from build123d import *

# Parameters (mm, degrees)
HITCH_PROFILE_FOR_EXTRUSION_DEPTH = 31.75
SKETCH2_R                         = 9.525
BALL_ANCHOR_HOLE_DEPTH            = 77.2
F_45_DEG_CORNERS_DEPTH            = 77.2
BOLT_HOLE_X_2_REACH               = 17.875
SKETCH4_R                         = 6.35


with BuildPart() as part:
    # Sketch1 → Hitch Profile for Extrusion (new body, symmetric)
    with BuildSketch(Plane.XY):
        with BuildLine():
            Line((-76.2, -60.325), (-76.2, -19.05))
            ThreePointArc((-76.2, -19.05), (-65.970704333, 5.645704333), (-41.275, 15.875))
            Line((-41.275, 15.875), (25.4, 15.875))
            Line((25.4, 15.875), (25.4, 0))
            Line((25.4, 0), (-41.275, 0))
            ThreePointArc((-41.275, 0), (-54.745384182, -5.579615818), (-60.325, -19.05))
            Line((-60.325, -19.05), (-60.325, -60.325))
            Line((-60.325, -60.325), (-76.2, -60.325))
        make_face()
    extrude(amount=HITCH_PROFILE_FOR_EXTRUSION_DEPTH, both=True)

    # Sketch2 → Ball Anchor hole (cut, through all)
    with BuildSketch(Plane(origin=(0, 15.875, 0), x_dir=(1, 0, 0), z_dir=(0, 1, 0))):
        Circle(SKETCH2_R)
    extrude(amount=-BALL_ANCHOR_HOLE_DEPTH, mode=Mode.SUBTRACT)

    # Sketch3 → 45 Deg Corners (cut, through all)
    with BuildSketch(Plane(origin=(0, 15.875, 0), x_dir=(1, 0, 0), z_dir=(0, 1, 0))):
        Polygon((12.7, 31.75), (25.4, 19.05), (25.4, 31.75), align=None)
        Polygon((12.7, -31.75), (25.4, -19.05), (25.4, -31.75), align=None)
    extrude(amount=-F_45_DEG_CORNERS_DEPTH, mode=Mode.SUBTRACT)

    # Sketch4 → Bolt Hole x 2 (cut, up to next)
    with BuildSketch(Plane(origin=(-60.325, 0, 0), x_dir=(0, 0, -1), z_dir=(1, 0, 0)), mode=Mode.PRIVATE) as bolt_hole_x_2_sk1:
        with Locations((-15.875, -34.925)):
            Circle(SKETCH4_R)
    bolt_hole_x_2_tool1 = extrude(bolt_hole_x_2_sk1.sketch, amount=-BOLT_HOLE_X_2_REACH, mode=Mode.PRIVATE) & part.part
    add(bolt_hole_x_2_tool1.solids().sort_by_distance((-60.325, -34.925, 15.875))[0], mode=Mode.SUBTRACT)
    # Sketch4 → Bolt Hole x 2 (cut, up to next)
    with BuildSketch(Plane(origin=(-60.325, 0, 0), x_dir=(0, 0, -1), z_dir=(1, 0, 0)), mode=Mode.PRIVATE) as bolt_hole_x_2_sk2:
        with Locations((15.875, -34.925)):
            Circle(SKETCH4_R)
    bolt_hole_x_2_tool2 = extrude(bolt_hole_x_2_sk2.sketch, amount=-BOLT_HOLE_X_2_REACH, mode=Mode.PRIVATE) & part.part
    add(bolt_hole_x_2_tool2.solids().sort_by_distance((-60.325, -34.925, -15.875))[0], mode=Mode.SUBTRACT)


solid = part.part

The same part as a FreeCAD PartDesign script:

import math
import FreeCAD as App
import Part
import Sketcher
Q = App.Units.Quantity


def add_polygon(sketch, points):
    """Adds a closed chain of lines whose ends are joined by coincident constraints."""
    first, n = sketch.GeometryCount, len(points)
    for a, b in zip(points, points[1:] + points[:1]):
        sketch.addGeometry(Part.LineSegment(App.Vector(*a, 0), App.Vector(*b, 0)), False)
    for i in range(n):
        sketch.addConstraint(Sketcher.Constraint("Coincident", first + i, 2, first + (i + 1) % n, 1))

doc = App.newDocument("Part")
body = doc.addObject("PartDesign::Body", "Body")

# Sketch on XY plane
sketch1 = body.newObject("Sketcher::SketchObject", "Sketch")
sketch1.AttachmentSupport = (doc.getObject("XY_Plane"), [""])
sketch1.MapMode = "FlatFace"
sketch1.addGeometry(Part.LineSegment(App.Vector(-76.2, -19.05, 0), App.Vector(-76.2, -60.325, 0)), False)
sketch1.addGeometry(Part.LineSegment(App.Vector(-76.2, -60.325, 0), App.Vector(-60.325, -60.325, 0)), False)
sketch1.addGeometry(Part.LineSegment(App.Vector(-60.325, -60.325, 0), App.Vector(-60.325, -19.05, 0)), False)
sketch1.addGeometry(Part.ArcOfCircle(Part.Circle(App.Vector(-41.275, -19.05, 0), App.Vector(0, 0, 1), 19.05), math.radians(90), math.radians(180)), False)
sketch1.addGeometry(Part.LineSegment(App.Vector(-41.275, 0, 0), App.Vector(25.4, 0, 0)), False)
sketch1.addGeometry(Part.LineSegment(App.Vector(25.4, 0, 0), App.Vector(25.4, 15.875, 0)), False)
sketch1.addGeometry(Part.LineSegment(App.Vector(25.4, 15.875, 0), App.Vector(-41.275, 15.875, 0)), False)
sketch1.addGeometry(Part.ArcOfCircle(Part.Circle(App.Vector(-41.275, -19.05, 0), App.Vector(0, 0, 1), 34.925), math.radians(90), math.radians(180)), False)
sketch1.addConstraint(Sketcher.Constraint("Coincident", 0, 2, 1, 1))
sketch1.addConstraint(Sketcher.Constraint("Coincident", 1, 2, 2, 1))
sketch1.addConstraint(Sketcher.Constraint("Tangent", 2, 2, 3, 2))
sketch1.addConstraint(Sketcher.Constraint("Tangent", 3, 1, 4, 1))
sketch1.addConstraint(Sketcher.Constraint("Coincident", 4, 2, 5, 1))
sketch1.addConstraint(Sketcher.Constraint("Coincident", 5, 2, 6, 1))
sketch1.addConstraint(Sketcher.Constraint("Tangent", 6, 2, 7, 1))
sketch1.addConstraint(Sketcher.Constraint("Tangent", 7, 2, 0, 1))
sketch1.addConstraint(Sketcher.Constraint("Vertical", 0))
sketch1.addConstraint(Sketcher.Constraint("Horizontal", 1))
sketch1.addConstraint(Sketcher.Constraint("Vertical", 2))
sketch1.addConstraint(Sketcher.Constraint("Horizontal", 4))
sketch1.addConstraint(Sketcher.Constraint("Vertical", 5))
sketch1.addConstraint(Sketcher.Constraint("Horizontal", 6))
sketch1.addConstraint(Sketcher.Constraint("Coincident", 7, 3, 3, 3))
sketch1.addConstraint(Sketcher.Constraint("PointOnObject", 3, 1, -1))
sketch1.addConstraint(Sketcher.Constraint("Radius", 3, Q("0.75 in")))
sketch1.addConstraint(Sketcher.Constraint("DistanceX", 0, 2, -1, 1, Q("3 in")))
sketch1.addConstraint(Sketcher.Constraint("DistanceX", -1, 1, 4, 2, Q("1 in")))
sketch1.addConstraint(Sketcher.Constraint("Radius", 7, Q("1.375 in")))
sketch1.addConstraint(Sketcher.Constraint("DistanceY", 0, 2, 0, 1, Q("1.625 in")))
pad1 = body.newObject("PartDesign::Pad", "Pad")
pad1.Profile = sketch1
pad1.Length = Q("2.5 in")
pad1.Midplane = True

# Sketch on XZ plane
sketch2 = body.newObject("Sketcher::SketchObject", "Sketch001")
sketch2.AttachmentSupport = (doc.getObject("XZ_Plane"), [""])
sketch2.MapMode = "FlatFace"
sketch2.AttachmentOffset = App.Placement(App.Vector(0, 0, -0.625 * 25.4), App.Rotation())
sketch2.addGeometry(Part.Circle(App.Vector(0, 0, 0), App.Vector(0, 0, 1), 9.525), False)
sketch2.addConstraint(Sketcher.Constraint("Coincident", 0, 3, -1, 1))
sketch2.addConstraint(Sketcher.Constraint("Diameter", 0, Q("0.75 in")))
pocket1 = body.newObject("PartDesign::Pocket", "Pocket")
pocket1.Profile = sketch2
pocket1.Type = "ThroughAll"
pocket1.Reversed = True

# Sketch on XZ plane
sketch3 = body.newObject("Sketcher::SketchObject", "Sketch002")
sketch3.AttachmentSupport = (doc.getObject("XZ_Plane"), [""])
sketch3.MapMode = "FlatFace"
sketch3.AttachmentOffset = App.Placement(App.Vector(0, 0, -0.625 * 25.4), App.Rotation())
add_polygon(sketch3, [(12.7, -31.75), (25.4, -19.05), (25.4, -31.75)])  # lines 0-2
add_polygon(sketch3, [(25.4, 19.05), (12.7, 31.75), (25.4, 31.75)])  # lines 3-5
sketch3.addConstraint(Sketcher.Constraint("Vertical", 1))
sketch3.addConstraint(Sketcher.Constraint("Horizontal", 2))
sketch3.addConstraint(Sketcher.Constraint("Horizontal", 4))
sketch3.addConstraint(Sketcher.Constraint("Vertical", 5))
sketch3.addConstraint(Sketcher.Constraint("Symmetric", 2, 2, 3, 2, -1))
sketch3.addConstraint(Sketcher.Constraint("Symmetric", 0, 2, 5, 2, -1))
sketch3.addConstraint(Sketcher.Constraint("Perpendicular", 0, 3))
sketch3.addConstraint(Sketcher.Constraint("DistanceX", 2, 2, 2, 1, Q("0.5 in")))
sketch3.addConstraint(Sketcher.Constraint("DistanceX", -1, 1, 0, 2, Q("1 in")))
sketch3.addConstraint(Sketcher.Constraint("DistanceY", 0, 2, 3, 2, Q("2 in")))
pocket2 = body.newObject("PartDesign::Pocket", "Pocket001")
pocket2.Profile = sketch3
pocket2.Type = "ThroughAll"
pocket2.Reversed = True

# Sketch on YZ plane
sketch4 = body.newObject("Sketcher::SketchObject", "Sketch003")
sketch4.AttachmentSupport = (doc.getObject("YZ_Plane"), [""])
sketch4.MapMode = "FlatFace"
sketch4.AttachmentOffset = App.Placement(App.Vector(0, 0, -2.375 * 25.4), App.Rotation())
sketch4.addGeometry(Part.Circle(App.Vector(-34.925, 15.875, 0), App.Vector(0, 0, 1), 6.35), False)
sketch4.addConstraint(Sketcher.Constraint("Diameter", 0, Q("0.5 in")))
sketch4.addConstraint(Sketcher.Constraint("DistanceX", 0, 3, -1, 1, Q("1.375 in")))
sketch4.addConstraint(Sketcher.Constraint("DistanceY", -1, 1, 0, 3, Q("0.625 in")))
pocket3 = body.newObject("PartDesign::Pocket", "Pocket002")
pocket3.Profile = sketch4
pocket3.Type = "UpToFirst"

# Sketch on YZ plane
sketch5 = body.newObject("Sketcher::SketchObject", "Sketch004")
sketch5.AttachmentSupport = (doc.getObject("YZ_Plane"), [""])
sketch5.MapMode = "FlatFace"
sketch5.AttachmentOffset = App.Placement(App.Vector(0, 0, -2.375 * 25.4), App.Rotation())
sketch5.addGeometry(Part.Circle(App.Vector(-34.925, -15.875, 0), App.Vector(0, 0, 1), 6.35), False)
sketch5.addConstraint(Sketcher.Constraint("Diameter", 0, Q("0.5 in")))
sketch5.addConstraint(Sketcher.Constraint("DistanceX", 0, 3, -1, 1, Q("1.375 in")))
sketch5.addConstraint(Sketcher.Constraint("DistanceY", 0, 3, -1, 1, Q("0.625 in")))
pocket4 = body.newObject("PartDesign::Pocket", "Pocket003")
pocket4.Profile = sketch5
pocket4.Type = "UpToFirst"

doc.recompute()
